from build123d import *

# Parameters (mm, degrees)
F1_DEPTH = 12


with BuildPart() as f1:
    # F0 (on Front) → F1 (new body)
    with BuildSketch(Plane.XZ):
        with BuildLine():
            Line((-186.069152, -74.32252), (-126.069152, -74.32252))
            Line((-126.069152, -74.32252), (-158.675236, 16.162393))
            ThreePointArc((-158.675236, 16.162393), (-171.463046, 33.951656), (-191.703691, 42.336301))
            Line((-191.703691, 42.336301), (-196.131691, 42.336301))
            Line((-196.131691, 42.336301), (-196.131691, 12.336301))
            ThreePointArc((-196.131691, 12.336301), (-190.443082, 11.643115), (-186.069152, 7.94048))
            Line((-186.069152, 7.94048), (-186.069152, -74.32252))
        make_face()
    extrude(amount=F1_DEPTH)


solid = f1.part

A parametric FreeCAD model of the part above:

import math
import FreeCAD as App
import Part
import Sketcher
Q = App.Units.Quantity

doc = App.newDocument("Part")
body = doc.addObject("PartDesign::Body", "Body")

sketch1 = doc.addObject("Sketcher::SketchObject", "Sketch")
body.addObject(sketch1)
sketch1.AttachmentSupport = (doc.XZ_Plane, [""])
sketch1.MapMode = "FlatFace"
sketch1.addGeometry(Part.LineSegment(App.Vector(-186.1, -74.3, 0), App.Vector(-126.1, -74.3, 0)), False)
sketch1.addGeometry(Part.LineSegment(App.Vector(-126.1, -74.3, 0), App.Vector(-158.7, 16.2, 0)), False)
sketch1.addGeometry(Part.ArcOfCircle(Part.Circle(App.Vector(-196.3, 2.6, 0), App.Vector(0, 0, 1), 40), math.radians(20), math.radians(83)), False)
sketch1.addGeometry(Part.LineSegment(App.Vector(-191.7, 42.3, 0), App.Vector(-196.1, 42.3, 0)), False)
sketch1.addGeometry(Part.LineSegment(App.Vector(-196.1, 42.3, 0), App.Vector(-196.1, 12.3, 0)), False)
sketch1.addGeometry(Part.ArcOfCircle(Part.Circle(App.Vector(-194.4, 2.5, 0), App.Vector(0, 0, 1), 10), math.radians(33), math.radians(100)), False)
sketch1.addGeometry(Part.LineSegment(App.Vector(-186.1, 7.9, 0), App.Vector(-186.1, -74.3, 0)), False)
sketch1.addConstraint(Sketcher.Constraint("Coincident", 0, 2, 1, 1))
sketch1.addConstraint(Sketcher.Constraint("Tangent", 1, 2, 2, 1))
sketch1.addConstraint(Sketcher.Constraint("Coincident", 2, 2, 3, 1))
sketch1.addConstraint(Sketcher.Constraint("Coincident", 3, 2, 4, 1))
sketch1.addConstraint(Sketcher.Constraint("Coincident", 4, 2, 5, 2))
sketch1.addConstraint(Sketcher.Constraint("Coincident", 5, 1, 6, 1))
sketch1.addConstraint(Sketcher.Constraint("Coincident", 6, 2, 0, 1))
sketch1.addConstraint(Sketcher.Constraint("Horizontal", 0))
sketch1.addConstraint(Sketcher.Constraint("Horizontal", 3))
sketch1.addConstraint(Sketcher.Constraint("Vertical", 4))
sketch1.addConstraint(Sketcher.Constraint("Vertical", 6))
sketch1.addConstraint(Sketcher.Constraint("Radius", 2, Q("39.999999 mm")))
sketch1.addConstraint(Sketcher.Constraint("Radius", 5, Q("10 mm")))
sketch1.addConstraint(Sketcher.Constraint("DistanceX", 0, 1, 0, 2, Q("60 mm")))
sketch1.addConstraint(Sketcher.Constraint("DistanceY", 4, 2, 4, 1, Q("30 mm")))
sketch1.addConstraint(Sketcher.Constraint("DistanceX", 3, 2, 3, 1, Q("4.428 mm")))
sketch1.addConstraint(Sketcher.Constraint("DistanceY", 6, 2, 6, 1, Q("82.263 mm")))
sketch1.addConstraint(Sketcher.Constraint("DistanceY", -1, 1, 2, 2, Q("42.336301 mm")))
sketch1.addConstraint(Sketcher.Constraint("DistanceX", 2, 3, 0, 2, Q("70.237401 mm")))
sketch1.addConstraint(Sketcher.Constraint("DistanceX", 5, 3, -1, 1, Q("194.446271 mm")))
sketch1.addConstraint(Sketcher.Constraint("DistanceY", 0, 2, -1, 1, Q("74.32252 mm")))
sketch1.addConstraint(Sketcher.Constraint("DistanceX", 2, 2, -1, 1, Q("191.703691 mm")))
pad1 = doc.addObject("PartDesign::Pad", "Pad")
body.addObject(pad1)
pad1.Profile = sketch1
pad1.Length = 12

doc.recompute()
